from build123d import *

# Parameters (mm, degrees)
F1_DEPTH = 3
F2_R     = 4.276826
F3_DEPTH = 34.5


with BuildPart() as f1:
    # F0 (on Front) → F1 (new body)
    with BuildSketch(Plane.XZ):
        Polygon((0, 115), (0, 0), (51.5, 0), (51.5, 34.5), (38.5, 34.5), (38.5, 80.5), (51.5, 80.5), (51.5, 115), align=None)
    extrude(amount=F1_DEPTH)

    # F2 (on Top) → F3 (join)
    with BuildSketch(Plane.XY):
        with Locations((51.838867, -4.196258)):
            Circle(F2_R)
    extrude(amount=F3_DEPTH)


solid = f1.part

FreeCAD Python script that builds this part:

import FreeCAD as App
import Part
import Sketcher

V = App.Vector
Q = App.Units.Quantity

doc = App.newDocument("Part")
params = doc.addObject("Spreadsheet::Sheet", "Params")
for row, (alias, value) in enumerate([
    ("sketch1_width", "13 mm"),
    ("sketch1_height", "115 mm"),
    ("sketch1_height2", "46 mm"),
    ("sketch1_width2", "51.5 mm"),
    ("pad1_length", "3 mm"),
    ("pad2_length", "34.5 mm"),
], start=1):
    params.set(f"A{row}", alias)
    params.set(f"B{row}", "=" + value)
    params.setAlias(f"B{row}", alias)

body = doc.addObject("PartDesign::Body", "Body")

# Sketch on XZ plane
sketch1 = doc.addObject("Sketcher::SketchObject", "Sketch")
body.addObject(sketch1)
sketch1.AttachmentSupport = (doc.XZ_Plane, [""])
sketch1.MapMode = "FlatFace"
sketch1.addGeometry([
    Part.LineSegment(V(0, 115, 0), V(0, 0, 0)),  # 0
    Part.LineSegment(V(0, 0, 0), V(52, 0, 0)),  # 1
    Part.LineSegment(V(52, 0, 0), V(52, 34, 0)),  # 2
    Part.LineSegment(V(52, 34, 0), V(38, 34, 0)),  # 3
    Part.LineSegment(V(38, 34, 0), V(38, 80, 0)),  # 4
    Part.LineSegment(V(38, 80, 0), V(52, 80, 0)),  # 5
    Part.LineSegment(V(52, 80, 0), V(52, 115, 0)),  # 6
    Part.LineSegment(V(52, 115, 0), V(0, 115, 0)),  # 7
], False)
sketch1.addConstraint([
    Sketcher.Constraint("Coincident", 0, 2, 1, 1),
    Sketcher.Constraint("Coincident", 1, 2, 2, 1),
    Sketcher.Constraint("Coincident", 2, 2, 3, 1),
    Sketcher.Constraint("Coincident", 3, 2, 4, 1),
    Sketcher.Constraint("Coincident", 4, 2, 5, 1),
    Sketcher.Constraint("Coincident", 5, 2, 6, 1),
    Sketcher.Constraint("Coincident", 6, 2, 7, 1),
    Sketcher.Constraint("Coincident", 7, 2, 0, 1),
    Sketcher.Constraint("Vertical", 0),
    Sketcher.Constraint("Horizontal", 1),
    Sketcher.Constraint("Vertical", 2),
    Sketcher.Constraint("Horizontal", 3),
    Sketcher.Constraint("Vertical", 4),
    Sketcher.Constraint("Horizontal", 5),
    Sketcher.Constraint("Vertical", 6),
    Sketcher.Constraint("Horizontal", 7),
    Sketcher.Constraint("Coincident", 0, 2, -1, 1),
    Sketcher.Constraint("Vertical", 2, 2, 5, 2),
    Sketcher.Constraint("Equal", 2, 6),
    Sketcher.Constraint("DistanceX", 3, 2, 3, 1, Q("13 mm")),
    Sketcher.Constraint("DistanceY", 0, 2, 0, 1, Q("115 mm")),
    Sketcher.Constraint("DistanceY", 4, 1, 4, 2, Q("46 mm")),
    Sketcher.Constraint("DistanceX", 1, 1, 1, 2, Q("51.5 mm")),
])
sketch1.setExpression("Constraints[19]", "Params.sketch1_width")
sketch1.setExpression("Constraints[20]", "Params.sketch1_height")
sketch1.setExpression("Constraints[21]", "Params.sketch1_height2")
sketch1.setExpression("Constraints[22]", "Params.sketch1_width2")
pad1 = doc.addObject("PartDesign::Pad", "Pad")
body.addObject(pad1)
pad1.Profile = sketch1
pad1.setExpression("Length", "Params.pad1_length")

# Sketch on XY plane
sketch2 = doc.addObject("Sketcher::SketchObject", "Sketch001")
body.addObject(sketch2)
sketch2.AttachmentSupport = (doc.XY_Plane, [""])
sketch2.MapMode = "FlatFace"
sketch2.addGeometry(Part.Circle(V(51.8, -4.2, 0), V(0, 0, 1), 4.3), False)
sketch2.addConstraint([
    Sketcher.Constraint("Diameter", 0, Q("8.553652 mm")),
    Sketcher.Constraint("DistanceY", 0, 3, -1, 1, Q("4.196258 mm")),
    Sketcher.Constraint("DistanceX", -1, 1, 0, 3, Q("51.838867 mm")),
])
pad2 = doc.addObject("PartDesign::Pad", "Pad001")
body.addObject(pad2)
pad2.Profile = sketch2
pad2.setExpression("Length", "Params.pad2_length")

doc.recompute()
